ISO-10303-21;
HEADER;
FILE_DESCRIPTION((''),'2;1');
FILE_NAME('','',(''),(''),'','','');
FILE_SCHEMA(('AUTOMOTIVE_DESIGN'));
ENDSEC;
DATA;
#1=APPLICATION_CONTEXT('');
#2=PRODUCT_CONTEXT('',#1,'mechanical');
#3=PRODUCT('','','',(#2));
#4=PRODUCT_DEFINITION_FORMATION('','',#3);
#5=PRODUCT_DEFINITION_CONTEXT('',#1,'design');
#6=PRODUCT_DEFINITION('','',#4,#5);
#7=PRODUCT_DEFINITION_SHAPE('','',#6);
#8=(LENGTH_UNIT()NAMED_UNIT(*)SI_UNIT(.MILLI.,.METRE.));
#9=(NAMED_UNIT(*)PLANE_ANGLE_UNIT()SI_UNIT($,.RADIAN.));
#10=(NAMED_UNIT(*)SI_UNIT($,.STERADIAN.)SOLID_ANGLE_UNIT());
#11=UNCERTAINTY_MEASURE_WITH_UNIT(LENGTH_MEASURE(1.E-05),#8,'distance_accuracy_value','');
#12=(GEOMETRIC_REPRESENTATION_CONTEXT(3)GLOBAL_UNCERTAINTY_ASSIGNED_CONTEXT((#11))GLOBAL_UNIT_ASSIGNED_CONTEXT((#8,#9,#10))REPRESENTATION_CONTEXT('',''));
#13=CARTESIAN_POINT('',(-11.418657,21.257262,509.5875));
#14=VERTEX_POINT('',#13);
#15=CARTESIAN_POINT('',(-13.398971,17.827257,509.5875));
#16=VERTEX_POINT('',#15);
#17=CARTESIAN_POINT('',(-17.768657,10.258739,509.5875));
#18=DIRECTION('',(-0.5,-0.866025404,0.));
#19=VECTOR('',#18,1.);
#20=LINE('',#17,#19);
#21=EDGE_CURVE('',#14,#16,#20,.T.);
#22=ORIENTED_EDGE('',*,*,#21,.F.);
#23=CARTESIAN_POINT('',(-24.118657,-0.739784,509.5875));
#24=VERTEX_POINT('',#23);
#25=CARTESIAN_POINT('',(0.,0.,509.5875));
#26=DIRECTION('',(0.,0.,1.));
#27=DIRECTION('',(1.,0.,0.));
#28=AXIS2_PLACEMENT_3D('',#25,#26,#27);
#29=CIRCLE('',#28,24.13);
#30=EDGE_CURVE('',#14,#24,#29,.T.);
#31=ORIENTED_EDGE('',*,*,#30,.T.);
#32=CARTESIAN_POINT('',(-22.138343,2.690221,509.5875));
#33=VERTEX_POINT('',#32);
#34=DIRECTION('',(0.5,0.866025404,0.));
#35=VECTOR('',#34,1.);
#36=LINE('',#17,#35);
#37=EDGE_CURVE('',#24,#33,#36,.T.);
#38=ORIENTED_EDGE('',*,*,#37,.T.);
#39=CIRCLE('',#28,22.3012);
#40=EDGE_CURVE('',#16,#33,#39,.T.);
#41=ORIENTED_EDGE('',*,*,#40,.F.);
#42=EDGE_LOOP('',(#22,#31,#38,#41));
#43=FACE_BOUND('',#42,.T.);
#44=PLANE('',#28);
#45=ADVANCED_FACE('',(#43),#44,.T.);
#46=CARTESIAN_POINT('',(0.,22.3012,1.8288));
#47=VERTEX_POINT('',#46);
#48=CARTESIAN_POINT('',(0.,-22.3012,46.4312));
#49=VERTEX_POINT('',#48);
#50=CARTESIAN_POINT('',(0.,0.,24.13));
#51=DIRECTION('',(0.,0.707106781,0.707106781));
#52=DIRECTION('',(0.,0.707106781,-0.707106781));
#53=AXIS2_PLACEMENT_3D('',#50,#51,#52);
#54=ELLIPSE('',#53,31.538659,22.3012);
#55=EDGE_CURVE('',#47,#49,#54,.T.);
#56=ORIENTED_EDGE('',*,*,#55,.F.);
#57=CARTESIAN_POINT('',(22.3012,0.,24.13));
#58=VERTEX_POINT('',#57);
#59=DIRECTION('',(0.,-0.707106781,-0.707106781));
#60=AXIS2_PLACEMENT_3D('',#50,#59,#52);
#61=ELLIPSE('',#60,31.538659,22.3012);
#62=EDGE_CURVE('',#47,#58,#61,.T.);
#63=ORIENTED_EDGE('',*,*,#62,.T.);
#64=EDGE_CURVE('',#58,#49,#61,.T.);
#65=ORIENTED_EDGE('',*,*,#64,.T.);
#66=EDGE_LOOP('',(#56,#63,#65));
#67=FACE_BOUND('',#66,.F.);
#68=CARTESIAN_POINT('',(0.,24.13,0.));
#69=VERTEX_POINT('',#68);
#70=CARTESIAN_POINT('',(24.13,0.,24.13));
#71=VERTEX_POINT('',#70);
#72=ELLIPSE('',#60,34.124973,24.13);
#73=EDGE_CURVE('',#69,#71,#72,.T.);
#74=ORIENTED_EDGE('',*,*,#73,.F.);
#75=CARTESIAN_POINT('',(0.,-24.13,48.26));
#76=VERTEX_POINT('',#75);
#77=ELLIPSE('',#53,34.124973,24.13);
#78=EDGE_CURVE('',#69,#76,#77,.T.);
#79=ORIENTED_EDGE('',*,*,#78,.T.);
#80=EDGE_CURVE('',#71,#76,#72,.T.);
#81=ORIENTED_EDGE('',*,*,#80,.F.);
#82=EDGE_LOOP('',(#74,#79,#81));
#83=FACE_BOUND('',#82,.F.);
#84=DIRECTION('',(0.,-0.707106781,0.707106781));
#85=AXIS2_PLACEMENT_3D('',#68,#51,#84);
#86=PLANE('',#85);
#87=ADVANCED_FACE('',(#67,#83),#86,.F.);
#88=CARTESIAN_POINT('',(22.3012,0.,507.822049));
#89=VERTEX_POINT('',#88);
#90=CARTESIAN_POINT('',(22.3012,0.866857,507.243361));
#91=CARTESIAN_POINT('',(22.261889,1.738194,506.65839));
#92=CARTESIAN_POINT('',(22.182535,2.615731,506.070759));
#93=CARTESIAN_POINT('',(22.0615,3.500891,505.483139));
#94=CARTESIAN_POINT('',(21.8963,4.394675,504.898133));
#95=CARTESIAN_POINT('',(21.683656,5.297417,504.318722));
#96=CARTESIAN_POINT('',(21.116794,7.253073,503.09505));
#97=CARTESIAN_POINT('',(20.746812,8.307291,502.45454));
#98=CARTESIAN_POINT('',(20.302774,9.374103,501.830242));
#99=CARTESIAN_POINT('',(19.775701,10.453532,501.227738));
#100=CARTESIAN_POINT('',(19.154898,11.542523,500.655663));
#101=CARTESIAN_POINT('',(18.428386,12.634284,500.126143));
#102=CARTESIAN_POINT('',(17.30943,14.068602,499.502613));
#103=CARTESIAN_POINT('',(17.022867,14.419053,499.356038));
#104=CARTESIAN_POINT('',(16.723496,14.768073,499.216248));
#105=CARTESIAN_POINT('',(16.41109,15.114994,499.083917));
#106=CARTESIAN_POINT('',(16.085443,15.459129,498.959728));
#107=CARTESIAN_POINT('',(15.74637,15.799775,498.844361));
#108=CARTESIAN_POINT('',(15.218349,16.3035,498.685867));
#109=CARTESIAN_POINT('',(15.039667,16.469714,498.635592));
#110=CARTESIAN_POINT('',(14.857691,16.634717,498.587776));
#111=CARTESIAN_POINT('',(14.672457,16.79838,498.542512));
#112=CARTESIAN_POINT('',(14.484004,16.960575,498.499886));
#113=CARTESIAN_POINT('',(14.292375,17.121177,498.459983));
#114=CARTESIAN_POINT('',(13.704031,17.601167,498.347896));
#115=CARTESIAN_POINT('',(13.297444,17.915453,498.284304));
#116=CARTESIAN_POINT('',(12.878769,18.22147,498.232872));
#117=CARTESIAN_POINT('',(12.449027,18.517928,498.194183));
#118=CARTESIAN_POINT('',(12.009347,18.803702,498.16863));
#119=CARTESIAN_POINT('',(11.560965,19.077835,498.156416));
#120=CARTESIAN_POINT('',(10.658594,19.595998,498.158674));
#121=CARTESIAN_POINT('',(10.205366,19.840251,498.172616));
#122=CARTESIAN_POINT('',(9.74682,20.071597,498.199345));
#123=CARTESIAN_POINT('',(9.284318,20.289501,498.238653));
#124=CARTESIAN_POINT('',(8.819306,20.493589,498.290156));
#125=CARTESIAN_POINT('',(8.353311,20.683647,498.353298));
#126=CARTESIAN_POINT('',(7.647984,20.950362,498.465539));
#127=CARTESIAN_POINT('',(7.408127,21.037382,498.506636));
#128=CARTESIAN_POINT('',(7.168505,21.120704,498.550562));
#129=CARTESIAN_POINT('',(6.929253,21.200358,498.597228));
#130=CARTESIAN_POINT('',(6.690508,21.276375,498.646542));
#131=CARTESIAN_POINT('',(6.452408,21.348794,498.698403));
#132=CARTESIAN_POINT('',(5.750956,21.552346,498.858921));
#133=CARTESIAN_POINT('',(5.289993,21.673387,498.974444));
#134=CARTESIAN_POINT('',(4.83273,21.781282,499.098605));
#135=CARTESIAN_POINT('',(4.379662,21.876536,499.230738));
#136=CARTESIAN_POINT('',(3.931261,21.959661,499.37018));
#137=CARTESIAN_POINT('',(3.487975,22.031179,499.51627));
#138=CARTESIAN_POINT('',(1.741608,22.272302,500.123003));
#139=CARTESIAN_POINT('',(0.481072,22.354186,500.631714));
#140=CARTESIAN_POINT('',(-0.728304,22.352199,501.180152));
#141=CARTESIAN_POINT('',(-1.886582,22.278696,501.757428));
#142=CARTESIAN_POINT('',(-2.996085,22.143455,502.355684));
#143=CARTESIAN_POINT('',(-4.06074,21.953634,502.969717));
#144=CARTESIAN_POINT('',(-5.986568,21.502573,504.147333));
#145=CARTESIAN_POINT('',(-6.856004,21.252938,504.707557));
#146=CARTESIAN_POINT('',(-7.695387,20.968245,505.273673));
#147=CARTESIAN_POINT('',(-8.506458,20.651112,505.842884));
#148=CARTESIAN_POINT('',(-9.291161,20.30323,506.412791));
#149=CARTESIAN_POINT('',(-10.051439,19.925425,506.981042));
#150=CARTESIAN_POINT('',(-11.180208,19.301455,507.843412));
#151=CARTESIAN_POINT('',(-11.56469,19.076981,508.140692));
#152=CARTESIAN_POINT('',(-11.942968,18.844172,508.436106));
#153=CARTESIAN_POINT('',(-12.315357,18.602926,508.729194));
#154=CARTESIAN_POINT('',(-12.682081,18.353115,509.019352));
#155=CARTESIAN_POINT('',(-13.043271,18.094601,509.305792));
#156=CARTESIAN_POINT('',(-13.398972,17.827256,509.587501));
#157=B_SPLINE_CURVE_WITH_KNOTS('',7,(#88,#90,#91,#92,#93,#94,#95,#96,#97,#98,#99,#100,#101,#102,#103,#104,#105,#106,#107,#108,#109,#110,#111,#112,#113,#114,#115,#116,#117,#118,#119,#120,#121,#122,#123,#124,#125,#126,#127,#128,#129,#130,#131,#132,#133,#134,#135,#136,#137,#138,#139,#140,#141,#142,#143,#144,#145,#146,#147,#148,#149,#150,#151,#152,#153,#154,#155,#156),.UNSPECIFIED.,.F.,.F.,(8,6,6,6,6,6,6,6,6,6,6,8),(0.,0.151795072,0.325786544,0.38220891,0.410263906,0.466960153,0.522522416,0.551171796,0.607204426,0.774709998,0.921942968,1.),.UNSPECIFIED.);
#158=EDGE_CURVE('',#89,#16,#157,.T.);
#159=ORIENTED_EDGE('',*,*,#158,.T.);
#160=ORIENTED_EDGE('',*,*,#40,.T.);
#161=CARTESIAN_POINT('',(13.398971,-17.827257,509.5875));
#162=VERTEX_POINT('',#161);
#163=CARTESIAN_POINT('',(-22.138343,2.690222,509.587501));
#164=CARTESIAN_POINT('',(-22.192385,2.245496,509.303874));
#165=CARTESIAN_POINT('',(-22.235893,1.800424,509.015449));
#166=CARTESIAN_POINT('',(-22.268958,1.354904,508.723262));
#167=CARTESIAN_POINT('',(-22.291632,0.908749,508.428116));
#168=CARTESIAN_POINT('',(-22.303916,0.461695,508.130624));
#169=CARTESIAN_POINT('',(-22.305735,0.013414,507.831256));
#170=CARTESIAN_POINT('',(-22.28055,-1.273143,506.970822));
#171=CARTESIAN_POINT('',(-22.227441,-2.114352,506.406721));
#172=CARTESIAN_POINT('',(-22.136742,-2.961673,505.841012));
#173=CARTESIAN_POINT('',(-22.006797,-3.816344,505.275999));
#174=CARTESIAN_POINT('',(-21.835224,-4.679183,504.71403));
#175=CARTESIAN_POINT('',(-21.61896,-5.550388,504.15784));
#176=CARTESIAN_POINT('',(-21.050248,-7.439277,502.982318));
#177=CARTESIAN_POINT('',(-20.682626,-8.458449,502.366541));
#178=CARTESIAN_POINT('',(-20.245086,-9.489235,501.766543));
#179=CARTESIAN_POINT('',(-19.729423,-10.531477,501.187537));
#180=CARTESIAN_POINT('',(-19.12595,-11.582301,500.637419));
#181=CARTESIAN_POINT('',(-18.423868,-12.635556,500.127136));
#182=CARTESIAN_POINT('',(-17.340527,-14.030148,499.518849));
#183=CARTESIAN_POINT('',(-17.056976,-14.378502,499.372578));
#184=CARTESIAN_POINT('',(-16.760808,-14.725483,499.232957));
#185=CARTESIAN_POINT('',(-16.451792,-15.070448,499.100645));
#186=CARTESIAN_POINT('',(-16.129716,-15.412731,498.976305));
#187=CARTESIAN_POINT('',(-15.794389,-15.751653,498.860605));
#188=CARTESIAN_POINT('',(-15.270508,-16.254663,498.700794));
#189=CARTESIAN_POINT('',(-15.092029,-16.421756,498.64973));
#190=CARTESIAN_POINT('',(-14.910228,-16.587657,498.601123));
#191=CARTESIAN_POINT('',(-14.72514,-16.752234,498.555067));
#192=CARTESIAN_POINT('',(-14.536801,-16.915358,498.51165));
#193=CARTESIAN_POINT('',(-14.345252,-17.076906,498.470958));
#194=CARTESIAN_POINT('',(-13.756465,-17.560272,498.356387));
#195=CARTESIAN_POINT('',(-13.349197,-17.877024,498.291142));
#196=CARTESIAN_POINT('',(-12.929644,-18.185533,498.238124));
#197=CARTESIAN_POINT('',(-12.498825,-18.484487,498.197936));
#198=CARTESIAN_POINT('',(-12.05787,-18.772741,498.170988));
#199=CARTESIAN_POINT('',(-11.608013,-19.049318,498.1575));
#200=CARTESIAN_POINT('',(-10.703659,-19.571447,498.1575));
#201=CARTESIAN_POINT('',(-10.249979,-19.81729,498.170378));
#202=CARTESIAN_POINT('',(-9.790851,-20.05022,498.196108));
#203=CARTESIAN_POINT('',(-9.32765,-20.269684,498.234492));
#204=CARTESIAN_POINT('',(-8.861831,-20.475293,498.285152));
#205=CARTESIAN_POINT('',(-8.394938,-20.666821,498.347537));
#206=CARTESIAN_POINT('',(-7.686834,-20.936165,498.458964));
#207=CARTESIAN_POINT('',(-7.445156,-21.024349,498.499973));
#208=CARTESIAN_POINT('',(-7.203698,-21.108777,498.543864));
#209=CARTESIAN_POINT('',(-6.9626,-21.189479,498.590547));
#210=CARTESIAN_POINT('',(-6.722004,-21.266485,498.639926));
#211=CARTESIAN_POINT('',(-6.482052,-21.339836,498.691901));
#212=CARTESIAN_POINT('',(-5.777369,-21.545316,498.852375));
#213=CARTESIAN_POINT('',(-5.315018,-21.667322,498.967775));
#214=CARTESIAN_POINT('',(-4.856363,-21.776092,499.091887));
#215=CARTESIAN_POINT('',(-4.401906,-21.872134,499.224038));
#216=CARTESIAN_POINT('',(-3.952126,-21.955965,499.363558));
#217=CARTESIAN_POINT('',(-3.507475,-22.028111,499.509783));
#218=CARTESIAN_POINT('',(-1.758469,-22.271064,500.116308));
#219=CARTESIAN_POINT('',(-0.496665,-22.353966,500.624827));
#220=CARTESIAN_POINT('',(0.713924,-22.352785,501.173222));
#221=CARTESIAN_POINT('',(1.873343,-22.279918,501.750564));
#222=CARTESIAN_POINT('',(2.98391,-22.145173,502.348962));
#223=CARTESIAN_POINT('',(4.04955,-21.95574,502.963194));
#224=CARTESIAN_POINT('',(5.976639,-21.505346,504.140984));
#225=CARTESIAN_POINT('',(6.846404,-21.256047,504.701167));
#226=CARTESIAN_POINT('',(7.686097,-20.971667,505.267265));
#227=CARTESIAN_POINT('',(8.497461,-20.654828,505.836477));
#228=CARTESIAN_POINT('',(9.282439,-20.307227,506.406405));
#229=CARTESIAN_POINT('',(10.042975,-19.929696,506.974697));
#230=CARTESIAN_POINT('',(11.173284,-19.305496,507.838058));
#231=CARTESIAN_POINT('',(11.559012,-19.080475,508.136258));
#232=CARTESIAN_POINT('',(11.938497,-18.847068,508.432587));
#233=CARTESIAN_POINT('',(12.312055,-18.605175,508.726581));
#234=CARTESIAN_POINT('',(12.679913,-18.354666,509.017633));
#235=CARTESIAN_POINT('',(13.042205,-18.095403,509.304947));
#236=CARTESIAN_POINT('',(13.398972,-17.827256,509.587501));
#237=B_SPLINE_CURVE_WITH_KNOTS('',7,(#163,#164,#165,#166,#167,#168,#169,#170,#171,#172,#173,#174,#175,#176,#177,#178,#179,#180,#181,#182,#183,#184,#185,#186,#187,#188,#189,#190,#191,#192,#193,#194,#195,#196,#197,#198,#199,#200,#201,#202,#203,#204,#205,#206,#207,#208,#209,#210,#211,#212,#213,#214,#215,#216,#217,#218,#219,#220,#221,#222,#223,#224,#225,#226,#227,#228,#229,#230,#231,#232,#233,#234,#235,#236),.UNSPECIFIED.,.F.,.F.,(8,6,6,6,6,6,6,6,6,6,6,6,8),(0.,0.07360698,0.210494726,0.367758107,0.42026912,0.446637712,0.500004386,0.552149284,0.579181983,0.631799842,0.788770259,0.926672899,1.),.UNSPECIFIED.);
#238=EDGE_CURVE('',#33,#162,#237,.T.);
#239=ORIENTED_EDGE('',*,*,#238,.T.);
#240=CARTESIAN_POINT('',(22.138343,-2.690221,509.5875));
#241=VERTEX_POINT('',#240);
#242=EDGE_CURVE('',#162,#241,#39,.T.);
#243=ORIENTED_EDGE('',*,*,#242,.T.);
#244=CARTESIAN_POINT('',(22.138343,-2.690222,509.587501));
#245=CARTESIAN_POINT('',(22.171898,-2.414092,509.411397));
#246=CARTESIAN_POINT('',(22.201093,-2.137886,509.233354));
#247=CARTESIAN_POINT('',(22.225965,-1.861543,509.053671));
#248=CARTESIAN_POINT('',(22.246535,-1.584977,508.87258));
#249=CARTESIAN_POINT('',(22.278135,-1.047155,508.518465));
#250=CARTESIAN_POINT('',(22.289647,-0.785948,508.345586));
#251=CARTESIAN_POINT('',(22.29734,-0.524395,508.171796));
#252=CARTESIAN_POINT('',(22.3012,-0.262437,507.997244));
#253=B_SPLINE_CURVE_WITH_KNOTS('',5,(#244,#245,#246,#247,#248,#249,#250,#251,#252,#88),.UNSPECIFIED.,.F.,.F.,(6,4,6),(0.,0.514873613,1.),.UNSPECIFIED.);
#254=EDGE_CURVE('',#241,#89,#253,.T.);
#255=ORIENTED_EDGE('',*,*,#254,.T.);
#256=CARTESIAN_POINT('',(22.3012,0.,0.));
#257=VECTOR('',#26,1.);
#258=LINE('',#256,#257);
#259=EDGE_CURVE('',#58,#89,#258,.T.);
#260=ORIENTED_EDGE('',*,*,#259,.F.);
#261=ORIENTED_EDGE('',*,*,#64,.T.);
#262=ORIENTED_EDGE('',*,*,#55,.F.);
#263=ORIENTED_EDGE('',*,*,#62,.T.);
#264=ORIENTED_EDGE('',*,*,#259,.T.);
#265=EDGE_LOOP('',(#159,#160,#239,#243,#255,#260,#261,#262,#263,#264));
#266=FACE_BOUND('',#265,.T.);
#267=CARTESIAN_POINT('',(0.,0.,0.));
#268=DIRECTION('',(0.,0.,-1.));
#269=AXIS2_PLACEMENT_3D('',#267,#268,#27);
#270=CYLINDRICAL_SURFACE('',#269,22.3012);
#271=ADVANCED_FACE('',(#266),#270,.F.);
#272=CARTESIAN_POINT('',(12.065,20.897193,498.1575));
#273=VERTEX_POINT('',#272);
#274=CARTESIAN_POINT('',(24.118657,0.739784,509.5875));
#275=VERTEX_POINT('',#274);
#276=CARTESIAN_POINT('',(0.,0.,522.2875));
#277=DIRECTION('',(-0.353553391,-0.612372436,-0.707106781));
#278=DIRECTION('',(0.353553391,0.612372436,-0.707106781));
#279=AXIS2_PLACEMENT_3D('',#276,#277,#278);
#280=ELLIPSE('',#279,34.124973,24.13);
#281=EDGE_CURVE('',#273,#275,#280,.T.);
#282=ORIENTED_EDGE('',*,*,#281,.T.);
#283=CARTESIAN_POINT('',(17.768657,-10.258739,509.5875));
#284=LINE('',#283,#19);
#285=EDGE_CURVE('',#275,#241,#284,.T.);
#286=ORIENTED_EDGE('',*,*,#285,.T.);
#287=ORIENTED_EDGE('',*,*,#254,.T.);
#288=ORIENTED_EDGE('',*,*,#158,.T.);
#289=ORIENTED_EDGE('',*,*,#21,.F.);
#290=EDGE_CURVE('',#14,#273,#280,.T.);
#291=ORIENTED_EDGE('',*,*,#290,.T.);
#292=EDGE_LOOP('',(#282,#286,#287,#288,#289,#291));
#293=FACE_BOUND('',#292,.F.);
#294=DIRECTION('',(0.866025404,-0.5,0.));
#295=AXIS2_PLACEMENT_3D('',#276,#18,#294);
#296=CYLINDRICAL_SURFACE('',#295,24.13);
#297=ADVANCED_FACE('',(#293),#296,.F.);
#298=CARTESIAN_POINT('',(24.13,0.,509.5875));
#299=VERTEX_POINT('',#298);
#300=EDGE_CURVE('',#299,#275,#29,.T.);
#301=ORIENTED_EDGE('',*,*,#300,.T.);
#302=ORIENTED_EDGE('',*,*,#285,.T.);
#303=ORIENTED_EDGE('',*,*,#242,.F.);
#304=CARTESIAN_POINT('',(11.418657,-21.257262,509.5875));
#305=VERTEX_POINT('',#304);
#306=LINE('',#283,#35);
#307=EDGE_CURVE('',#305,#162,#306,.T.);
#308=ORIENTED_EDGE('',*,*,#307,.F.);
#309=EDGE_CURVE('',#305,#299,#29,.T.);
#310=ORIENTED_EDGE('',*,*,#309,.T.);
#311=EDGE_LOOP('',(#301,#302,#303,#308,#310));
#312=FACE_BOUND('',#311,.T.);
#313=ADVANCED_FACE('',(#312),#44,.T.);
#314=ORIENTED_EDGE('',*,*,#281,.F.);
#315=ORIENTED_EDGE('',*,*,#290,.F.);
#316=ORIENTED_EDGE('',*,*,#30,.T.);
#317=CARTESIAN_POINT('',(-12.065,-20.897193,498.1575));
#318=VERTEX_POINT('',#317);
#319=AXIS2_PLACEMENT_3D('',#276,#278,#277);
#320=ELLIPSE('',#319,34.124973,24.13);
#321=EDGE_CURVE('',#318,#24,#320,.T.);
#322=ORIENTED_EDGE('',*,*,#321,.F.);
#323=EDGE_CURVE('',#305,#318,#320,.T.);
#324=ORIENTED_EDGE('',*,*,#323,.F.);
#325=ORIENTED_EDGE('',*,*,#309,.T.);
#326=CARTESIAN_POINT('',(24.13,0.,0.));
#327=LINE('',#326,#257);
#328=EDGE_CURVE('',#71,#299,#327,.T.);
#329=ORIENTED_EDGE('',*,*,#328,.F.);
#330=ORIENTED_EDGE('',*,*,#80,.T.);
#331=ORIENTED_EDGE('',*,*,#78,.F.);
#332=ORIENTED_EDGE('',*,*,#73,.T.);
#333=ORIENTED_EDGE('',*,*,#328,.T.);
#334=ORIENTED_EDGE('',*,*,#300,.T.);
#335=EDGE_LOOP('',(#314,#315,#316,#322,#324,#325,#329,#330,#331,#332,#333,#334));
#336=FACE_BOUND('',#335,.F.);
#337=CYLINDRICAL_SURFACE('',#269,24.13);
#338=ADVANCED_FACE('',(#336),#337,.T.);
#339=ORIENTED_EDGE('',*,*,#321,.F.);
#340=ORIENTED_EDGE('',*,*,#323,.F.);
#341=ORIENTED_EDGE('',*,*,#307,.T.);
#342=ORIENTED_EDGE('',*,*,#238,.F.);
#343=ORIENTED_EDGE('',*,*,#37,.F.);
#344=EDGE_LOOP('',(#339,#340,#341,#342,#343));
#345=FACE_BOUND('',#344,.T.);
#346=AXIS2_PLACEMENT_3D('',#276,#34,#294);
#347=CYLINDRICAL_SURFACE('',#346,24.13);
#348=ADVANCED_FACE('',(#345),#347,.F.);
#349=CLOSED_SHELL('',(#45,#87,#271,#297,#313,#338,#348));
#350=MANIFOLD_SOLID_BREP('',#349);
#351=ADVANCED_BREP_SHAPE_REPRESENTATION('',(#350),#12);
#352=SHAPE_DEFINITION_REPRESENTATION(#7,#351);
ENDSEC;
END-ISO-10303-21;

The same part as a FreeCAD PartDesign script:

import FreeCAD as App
import Part
import Sketcher
Q = App.Units.Quantity


def add_polygon(sketch, points):
    """Adds a closed chain of lines whose ends are joined by coincident constraints."""
    first, n = sketch.GeometryCount, len(points)
    for a, b in zip(points, points[1:] + points[:1]):
        sketch.addGeometry(Part.LineSegment(App.Vector(*a, 0), App.Vector(*b, 0)), False)
    for i in range(n):
        sketch.addConstraint(Sketcher.Constraint("Coincident", first + i, 2, first + (i + 1) % n, 1))

doc = App.newDocument("Part")
params = doc.addObject("Spreadsheet::Sheet", "Params")
for row, (alias, value) in enumerate([
    ("sketch1_diameter", "1.9 in"),
    ("sketch1_diameter2", "1.756 in"),
    ("pad1_length", "20.0625 in"),
    ("sketch2_width", "1.9 in"),
    ("sketch3_diameter", "1.9 in"),
], start=1):
    params.set(f"A{row}", alias)
    params.set(f"B{row}", "=" + value)
    params.setAlias(f"B{row}", alias)

body = doc.addObject("PartDesign::Body", "Body")

sketch1 = body.newObject("Sketcher::SketchObject", "Sketch")
sketch1.AttachmentSupport = (doc.getObject("XY_Plane"), [""])
sketch1.MapMode = "FlatFace"
sketch1.addGeometry(Part.Circle(App.Vector(0, 0, 0), App.Vector(0, 0, 1), 24), False)
sketch1.addGeometry(Part.Circle(App.Vector(0, 0, 0), App.Vector(0, 0, 1), 22), False)
sketch1.addConstraint(Sketcher.Constraint("Coincident", 0, 3, -1, 1))
sketch1.addConstraint(Sketcher.Constraint("Coincident", 1, 3, -1, 1))
sketch1.addConstraint(Sketcher.Constraint("Diameter", 0, Q("1.9 in")))
sketch1.addConstraint(Sketcher.Constraint("Diameter", 1, Q("1.756 in")))
sketch1.setExpression("Constraints[2]", "Params.sketch1_diameter")
sketch1.setExpression("Constraints[3]", "Params.sketch1_diameter2")
pad1 = body.newObject("PartDesign::Pad", "Pad")
pad1.Profile = sketch1
pad1.setExpression("Length", "Params.pad1_length")

sketch2 = body.newObject("Sketcher::SketchObject", "Sketch001")
sketch2.AttachmentSupport = (doc.getObject("YZ_Plane"), [""])
sketch2.MapMode = "FlatFace"
add_polygon(sketch2, [(-24, 48), (-24, 0), (24, 0)])
sketch2.addConstraint(Sketcher.Constraint("Vertical", 0))
sketch2.addConstraint(Sketcher.Constraint("Horizontal", 1))
sketch2.addConstraint(Sketcher.Constraint("Symmetric", 0, 2, 1, 2, -1, 1))
sketch2.addConstraint(Sketcher.Constraint("Equal", 1, 0))
sketch2.addConstraint(Sketcher.Constraint("DistanceX", 1, 1, 1, 2, Q("1.9 in")))
sketch2.setExpression("Constraints[7]", "Params.sketch2_width")
pocket1 = body.newObject("PartDesign::Pocket", "Pocket")
pocket1.Profile = sketch2
pocket1.Type = "ThroughAll"
pocket1.Midplane = True

sketch3 = body.newObject("Sketcher::SketchObject", "Sketch002")
sketch3.Placement = App.Placement(App.Vector(0, 0, 0), App.Rotation(App.Vector(0.866025404, -0.5, 0), App.Vector(0, 0, 1), App.Vector(-0.5, -0.866025404, 0), "ZXY"))
sketch3.addGeometry(Part.Circle(App.Vector(0, 522, 0), App.Vector(0, 0, 1), 24), False)
sketch3.addConstraint(Sketcher.Constraint("PointOnObject", 0, 3, -2))
sketch3.addConstraint(Sketcher.Constraint("Diameter", 0, Q("1.9 in")))
sketch3.addConstraint(Sketcher.Constraint("DistanceY", -1, 1, 0, 3, Q("20.5625 in")))
sketch3.setExpression("Constraints[1]", "Params.sketch3_diameter")
pocket2 = body.newObject("PartDesign::Pocket", "Pocket001")
pocket2.Profile = sketch3
pocket2.Type = "ThroughAll"
pocket2.Midplane = True

doc.recompute()
